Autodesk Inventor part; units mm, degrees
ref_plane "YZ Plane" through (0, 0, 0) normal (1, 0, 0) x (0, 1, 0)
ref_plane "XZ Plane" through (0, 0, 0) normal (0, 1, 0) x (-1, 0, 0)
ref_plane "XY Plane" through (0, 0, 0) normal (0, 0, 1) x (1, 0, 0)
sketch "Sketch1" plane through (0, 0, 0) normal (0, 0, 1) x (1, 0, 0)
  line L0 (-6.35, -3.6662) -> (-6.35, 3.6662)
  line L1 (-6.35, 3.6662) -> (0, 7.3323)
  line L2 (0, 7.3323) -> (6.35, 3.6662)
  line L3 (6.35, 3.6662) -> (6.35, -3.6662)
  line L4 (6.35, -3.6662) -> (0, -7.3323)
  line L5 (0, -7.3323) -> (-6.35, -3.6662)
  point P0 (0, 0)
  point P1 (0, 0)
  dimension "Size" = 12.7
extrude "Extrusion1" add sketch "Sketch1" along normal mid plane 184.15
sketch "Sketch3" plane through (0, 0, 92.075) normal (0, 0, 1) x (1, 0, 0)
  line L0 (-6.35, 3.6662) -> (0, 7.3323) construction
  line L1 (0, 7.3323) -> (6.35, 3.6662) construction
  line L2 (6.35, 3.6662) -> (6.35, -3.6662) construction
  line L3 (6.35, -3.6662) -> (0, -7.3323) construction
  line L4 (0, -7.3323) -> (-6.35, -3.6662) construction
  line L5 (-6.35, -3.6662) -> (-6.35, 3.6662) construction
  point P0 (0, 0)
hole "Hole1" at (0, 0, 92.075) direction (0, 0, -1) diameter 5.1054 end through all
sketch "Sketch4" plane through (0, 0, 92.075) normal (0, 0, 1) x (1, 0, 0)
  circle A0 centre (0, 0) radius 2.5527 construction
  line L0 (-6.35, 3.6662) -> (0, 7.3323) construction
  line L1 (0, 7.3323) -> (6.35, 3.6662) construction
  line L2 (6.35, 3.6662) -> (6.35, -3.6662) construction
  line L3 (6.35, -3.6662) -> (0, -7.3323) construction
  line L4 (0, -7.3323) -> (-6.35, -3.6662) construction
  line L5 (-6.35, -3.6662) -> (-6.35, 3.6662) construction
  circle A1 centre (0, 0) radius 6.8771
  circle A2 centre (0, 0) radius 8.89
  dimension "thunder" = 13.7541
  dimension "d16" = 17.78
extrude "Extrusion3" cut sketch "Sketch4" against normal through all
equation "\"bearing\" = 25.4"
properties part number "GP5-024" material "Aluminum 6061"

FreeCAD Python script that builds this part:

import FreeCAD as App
import Part
import Sketcher
from FreeCAD import Vector
Q = App.Units.Quantity


def add_polygon(sketch, points):
    """Adds a closed chain of lines whose ends are joined by coincident constraints."""
    first, n = sketch.GeometryCount, len(points)
    for a, b in zip(points, points[1:] + points[:1]):
        sketch.addGeometry(Part.LineSegment(App.Vector(*a, 0), App.Vector(*b, 0)), False)
    for i in range(n):
        sketch.addConstraint(Sketcher.Constraint("Coincident", first + i, 2, first + (i + 1) % n, 1))

doc = App.newDocument("Part")
body = doc.addObject("PartDesign::Body", "Body")

sketch1 = body.newObject("Sketcher::SketchObject", "Sketch")
sketch1.AttachmentSupport = (doc.getObject("XY_Plane"), [""])
sketch1.MapMode = "FlatFace"
add_polygon(sketch1, [(-6, 4), (-6, -4), (0, -7), (6, -4), (6, 4), (0, 7)])
sketch1.addConstraint(Sketcher.Constraint("Vertical", 0))
sketch1.addConstraint(Sketcher.Constraint("Vertical", 3))
sketch1.addConstraint(Sketcher.Constraint("Symmetric", 0, 2, 3, 2, -1, 1))
sketch1.addConstraint(Sketcher.Constraint("Symmetric", 1, 2, 4, 2, -1, 1))
sketch1.addConstraint(Sketcher.Constraint("PointOnObject", 1, 2, -2))
sketch1.addConstraint(Sketcher.Constraint("Parallel", 2, 5))
sketch1.addConstraint(Sketcher.Constraint("Horizontal", 0, 2, 2, 2))
sketch1.addConstraint(Sketcher.Constraint("DistanceX", 0, 2, 2, 2, Q("0.5 in")))
sketch1.addConstraint(Sketcher.Constraint("Angle", 1, Q("-29.9995 deg")))
sketch1.addConstraint(Sketcher.Constraint("DistanceY", 1, 2, 3, 2, Q("0.433 in")))
pad1 = body.newObject("PartDesign::Pad", "Pad")
pad1.Profile = sketch1
pad1.Length = Q("7.25 in")
pad1.Midplane = True

sketch2 = body.newObject("Sketcher::SketchObject", "Sketch001")
sketch2.AttachmentSupport = (doc.getObject("XY_Plane"), [""])
sketch2.MapMode = "FlatFace"
sketch2.AttachmentOffset = App.Placement(Vector(0, 0, 3.625 * 25.4), App.Rotation())
sketch2.addGeometry(Part.Circle(Vector(0, 0, 0), Vector(0, 0, 1), 2.6), False)
sketch2.addConstraint(Sketcher.Constraint("Coincident", 0, 3, -1, 1))
sketch2.addConstraint(Sketcher.Constraint("Diameter", 0, Q("0.201 in")))
doc.recompute()
hole = body.newObject("PartDesign::Hole", "Hole")
hole.Profile = sketch2
hole.ThreadType = "None"
hole.Diameter = Q("0.201 in")
hole.DepthType = "ThroughAll"

sketch3 = body.newObject("Sketcher::SketchObject", "Sketch002")
sketch3.AttachmentSupport = (doc.getObject("XY_Plane"), [""])
sketch3.MapMode = "FlatFace"
sketch3.AttachmentOffset = App.Placement(Vector(0, 0, 3.625 * 25.4), App.Rotation())
sketch3.addGeometry(Part.Circle(Vector(0, 0, 0), Vector(0, 0, 1), 9), False)
sketch3.addGeometry(Part.Circle(Vector(0, 0, 0), Vector(0, 0, 1), 7), False)
sketch3.addConstraint(Sketcher.Constraint("Coincident", 0, 3, -1, 1))
sketch3.addConstraint(Sketcher.Constraint("Coincident", 1, 3, -1, 1))
sketch3.addConstraint(Sketcher.Constraint("Diameter", 0, Q("0.7 in")))
sketch3.addConstraint(Sketcher.Constraint("Diameter", 1, Q("0.5415 in")))
pocket1 = body.newObject("PartDesign::Pocket", "Pocket")
pocket1.Profile = sketch3
pocket1.Type = "ThroughAll"

doc.recompute()
